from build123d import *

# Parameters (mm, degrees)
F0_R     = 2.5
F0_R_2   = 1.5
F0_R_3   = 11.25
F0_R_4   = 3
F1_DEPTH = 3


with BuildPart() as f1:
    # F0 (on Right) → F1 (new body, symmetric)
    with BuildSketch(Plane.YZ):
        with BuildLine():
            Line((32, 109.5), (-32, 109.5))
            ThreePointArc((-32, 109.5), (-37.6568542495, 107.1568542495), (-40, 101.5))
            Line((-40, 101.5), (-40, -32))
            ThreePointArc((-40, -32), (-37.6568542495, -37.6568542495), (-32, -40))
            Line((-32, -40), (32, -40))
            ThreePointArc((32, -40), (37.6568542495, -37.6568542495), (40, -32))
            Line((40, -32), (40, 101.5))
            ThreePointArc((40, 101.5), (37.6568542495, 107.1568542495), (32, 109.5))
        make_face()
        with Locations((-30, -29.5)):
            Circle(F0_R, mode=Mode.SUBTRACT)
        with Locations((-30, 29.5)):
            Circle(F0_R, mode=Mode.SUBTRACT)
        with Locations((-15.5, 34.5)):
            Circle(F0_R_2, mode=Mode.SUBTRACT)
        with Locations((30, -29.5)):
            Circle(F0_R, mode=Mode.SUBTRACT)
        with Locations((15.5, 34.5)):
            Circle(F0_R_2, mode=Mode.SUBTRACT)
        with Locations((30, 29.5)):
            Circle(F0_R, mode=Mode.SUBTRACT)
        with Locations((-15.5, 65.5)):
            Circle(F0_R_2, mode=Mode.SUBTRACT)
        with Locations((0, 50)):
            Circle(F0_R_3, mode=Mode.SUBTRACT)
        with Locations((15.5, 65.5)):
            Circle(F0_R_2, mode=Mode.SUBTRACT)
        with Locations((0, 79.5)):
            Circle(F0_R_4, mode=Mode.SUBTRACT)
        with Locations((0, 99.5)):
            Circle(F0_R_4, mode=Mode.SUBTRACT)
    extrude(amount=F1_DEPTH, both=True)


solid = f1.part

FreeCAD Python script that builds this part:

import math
import FreeCAD as App
import Part
import Sketcher

V = App.Vector
Q = App.Units.Quantity

doc = App.newDocument("Part")
body = doc.addObject("PartDesign::Body", "Body")

# Sketch on YZ plane
sketch1 = doc.addObject("Sketcher::SketchObject", "Sketch")
body.addObject(sketch1)
sketch1.AttachmentSupport = (doc.YZ_Plane, [""])
sketch1.MapMode = "FlatFace"
sketch1.addGeometry(Part.LineSegment(V(32, 109.5, 0), V(-32, 109.5, 0)), False)
sketch1.addGeometry(Part.ArcOfCircle(Part.Circle(V(-32, 101.5, 0), V(0, 0, 1), 8), math.radians(90), math.radians(180)), False)
sketch1.addGeometry(Part.LineSegment(V(-40, 101.5, 0), V(-40, -32, 0)), False)
sketch1.addGeometry(Part.ArcOfCircle(Part.Circle(V(-32, -32, 0), V(0, 0, 1), 8), math.radians(180), math.radians(270)), False)
sketch1.addGeometry(Part.LineSegment(V(-32, -40, 0), V(32, -40, 0)), False)
sketch1.addGeometry(Part.ArcOfCircle(Part.Circle(V(32, -32, 0), V(0, 0, 1), 8), math.radians(-90), math.radians(0)), False)
sketch1.addGeometry(Part.LineSegment(V(40, -32, 0), V(40, 101.5, 0)), False)
sketch1.addGeometry(Part.ArcOfCircle(Part.Circle(V(32, 101.5, 0), V(0, 0, 1), 8), math.radians(0), math.radians(90)), False)
sketch1.addGeometry(Part.Circle(V(-30, -29.5, 0), V(0, 0, 1), 2.5), False)
sketch1.addGeometry(Part.Circle(V(-30, 29.5, 0), V(0, 0, 1), 2.5), False)
sketch1.addGeometry(Part.Circle(V(-15.5, 34.5, 0), V(0, 0, 1), 1.5), False)
sketch1.addGeometry(Part.Circle(V(30, -29.5, 0), V(0, 0, 1), 2.5), False)
sketch1.addGeometry(Part.Circle(V(15.5, 34.5, 0), V(0, 0, 1), 1.5), False)
sketch1.addGeometry(Part.Circle(V(30, 29.5, 0), V(0, 0, 1), 2.5), False)
sketch1.addGeometry(Part.Circle(V(-15.5, 65.5, 0), V(0, 0, 1), 1.5), False)
sketch1.addGeometry(Part.Circle(V(0, 50, 0), V(0, 0, 1), 11.2), False)
sketch1.addGeometry(Part.Circle(V(15.5, 65.5, 0), V(0, 0, 1), 1.5), False)
sketch1.addGeometry(Part.Circle(V(0, 79.5, 0), V(0, 0, 1), 3), False)
sketch1.addGeometry(Part.Circle(V(0, 99.5, 0), V(0, 0, 1), 3), False)
sketch1.addConstraint(Sketcher.Constraint("Tangent", 0, 2, 1, 1))
sketch1.addConstraint(Sketcher.Constraint("Tangent", 1, 2, 2, 1))
sketch1.addConstraint(Sketcher.Constraint("Tangent", 2, 2, 3, 1))
sketch1.addConstraint(Sketcher.Constraint("Tangent", 3, 2, 4, 1))
sketch1.addConstraint(Sketcher.Constraint("Tangent", 4, 2, 5, 1))
sketch1.addConstraint(Sketcher.Constraint("Tangent", 5, 2, 6, 1))
sketch1.addConstraint(Sketcher.Constraint("Tangent", 6, 2, 7, 1))
sketch1.addConstraint(Sketcher.Constraint("Tangent", 7, 2, 0, 1))
sketch1.addConstraint(Sketcher.Constraint("Horizontal", 0))
sketch1.addConstraint(Sketcher.Constraint("Vertical", 2))
sketch1.addConstraint(Sketcher.Constraint("Horizontal", 4))
sketch1.addConstraint(Sketcher.Constraint("Vertical", 6))
sketch1.addConstraint(Sketcher.Constraint("Equal", 1, 3))
sketch1.addConstraint(Sketcher.Constraint("Equal", 3, 5))
sketch1.addConstraint(Sketcher.Constraint("Equal", 5, 7))
sketch1.addConstraint(Sketcher.Constraint("Equal", 8, 9))
sketch1.addConstraint(Sketcher.Constraint("Equal", 9, 11))
sketch1.addConstraint(Sketcher.Constraint("Equal", 10, 12))
sketch1.addConstraint(Sketcher.Constraint("Equal", 11, 13))
sketch1.addConstraint(Sketcher.Constraint("Equal", 12, 14))
sketch1.addConstraint(Sketcher.Constraint("Equal", 14, 16))
sketch1.addConstraint(Sketcher.Constraint("Equal", 17, 18))
sketch1.addConstraint(Sketcher.Constraint("Symmetric", 9, 3, 11, 3, -1, 1))
sketch1.addConstraint(Sketcher.Constraint("Symmetric", 8, 3, 13, 3, -1, 1))
sketch1.addConstraint(Sketcher.Constraint("Symmetric", 8, 3, 11, 3, -2))
sketch1.addConstraint(Sketcher.Constraint("Symmetric", 10, 3, 12, 3, -2))
sketch1.addConstraint(Sketcher.Constraint("Symmetric", 14, 3, 16, 3, -2))
sketch1.addConstraint(Sketcher.Constraint("PointOnObject", 15, 3, -2))
sketch1.addConstraint(Sketcher.Constraint("PointOnObject", 17, 3, -2))
sketch1.addConstraint(Sketcher.Constraint("PointOnObject", 18, 3, -2))
sketch1.addConstraint(Sketcher.Constraint("Vertical", 10, 3, 14, 3))
sketch1.addConstraint(Sketcher.Constraint("Diameter", 8, Q("5 mm")))
sketch1.addConstraint(Sketcher.Constraint("Diameter", 10, Q("3 mm")))
sketch1.addConstraint(Sketcher.Constraint("Diameter", 17, Q("6 mm")))
sketch1.addConstraint(Sketcher.Constraint("Radius", 1, Q("8 mm")))
sketch1.addConstraint(Sketcher.Constraint("Diameter", 15, Q("22.5 mm")))
sketch1.addConstraint(Sketcher.Constraint("DistanceX", 0, 2, 0, 1, Q("64 mm")))
sketch1.addConstraint(Sketcher.Constraint("DistanceY", 2, 2, 2, 1, Q("133.5 mm")))
sketch1.addConstraint(Sketcher.Constraint("DistanceX", 1, 3, -1, 1, Q("32 mm")))
sketch1.addConstraint(Sketcher.Constraint("DistanceY", 3, 3, -1, 1, Q("32 mm")))
sketch1.addConstraint(Sketcher.Constraint("DistanceX", 8, 3, -1, 1, Q("30 mm")))
sketch1.addConstraint(Sketcher.Constraint("DistanceY", -1, 1, 15, 3, Q("50 mm")))
sketch1.addConstraint(Sketcher.Constraint("DistanceY", 8, 3, 1, 3, Q("131 mm")))
sketch1.addConstraint(Sketcher.Constraint("DistanceY", 9, 3, 10, 3, Q("5 mm")))
sketch1.addConstraint(Sketcher.Constraint("DistanceX", 10, 3, 12, 3, Q("31 mm")))
sketch1.addConstraint(Sketcher.Constraint("DistanceY", 10, 3, 14, 3, Q("31 mm")))
sketch1.addConstraint(Sketcher.Constraint("DistanceY", 14, 3, 17, 3, Q("14 mm")))
sketch1.addConstraint(Sketcher.Constraint("DistanceY", 17, 3, 18, 3, Q("20 mm")))
pad1 = doc.addObject("PartDesign::Pad", "Pad")
body.addObject(pad1)
pad1.Profile = sketch1
pad1.Length = 6
pad1.Midplane = True

doc.recompute()
